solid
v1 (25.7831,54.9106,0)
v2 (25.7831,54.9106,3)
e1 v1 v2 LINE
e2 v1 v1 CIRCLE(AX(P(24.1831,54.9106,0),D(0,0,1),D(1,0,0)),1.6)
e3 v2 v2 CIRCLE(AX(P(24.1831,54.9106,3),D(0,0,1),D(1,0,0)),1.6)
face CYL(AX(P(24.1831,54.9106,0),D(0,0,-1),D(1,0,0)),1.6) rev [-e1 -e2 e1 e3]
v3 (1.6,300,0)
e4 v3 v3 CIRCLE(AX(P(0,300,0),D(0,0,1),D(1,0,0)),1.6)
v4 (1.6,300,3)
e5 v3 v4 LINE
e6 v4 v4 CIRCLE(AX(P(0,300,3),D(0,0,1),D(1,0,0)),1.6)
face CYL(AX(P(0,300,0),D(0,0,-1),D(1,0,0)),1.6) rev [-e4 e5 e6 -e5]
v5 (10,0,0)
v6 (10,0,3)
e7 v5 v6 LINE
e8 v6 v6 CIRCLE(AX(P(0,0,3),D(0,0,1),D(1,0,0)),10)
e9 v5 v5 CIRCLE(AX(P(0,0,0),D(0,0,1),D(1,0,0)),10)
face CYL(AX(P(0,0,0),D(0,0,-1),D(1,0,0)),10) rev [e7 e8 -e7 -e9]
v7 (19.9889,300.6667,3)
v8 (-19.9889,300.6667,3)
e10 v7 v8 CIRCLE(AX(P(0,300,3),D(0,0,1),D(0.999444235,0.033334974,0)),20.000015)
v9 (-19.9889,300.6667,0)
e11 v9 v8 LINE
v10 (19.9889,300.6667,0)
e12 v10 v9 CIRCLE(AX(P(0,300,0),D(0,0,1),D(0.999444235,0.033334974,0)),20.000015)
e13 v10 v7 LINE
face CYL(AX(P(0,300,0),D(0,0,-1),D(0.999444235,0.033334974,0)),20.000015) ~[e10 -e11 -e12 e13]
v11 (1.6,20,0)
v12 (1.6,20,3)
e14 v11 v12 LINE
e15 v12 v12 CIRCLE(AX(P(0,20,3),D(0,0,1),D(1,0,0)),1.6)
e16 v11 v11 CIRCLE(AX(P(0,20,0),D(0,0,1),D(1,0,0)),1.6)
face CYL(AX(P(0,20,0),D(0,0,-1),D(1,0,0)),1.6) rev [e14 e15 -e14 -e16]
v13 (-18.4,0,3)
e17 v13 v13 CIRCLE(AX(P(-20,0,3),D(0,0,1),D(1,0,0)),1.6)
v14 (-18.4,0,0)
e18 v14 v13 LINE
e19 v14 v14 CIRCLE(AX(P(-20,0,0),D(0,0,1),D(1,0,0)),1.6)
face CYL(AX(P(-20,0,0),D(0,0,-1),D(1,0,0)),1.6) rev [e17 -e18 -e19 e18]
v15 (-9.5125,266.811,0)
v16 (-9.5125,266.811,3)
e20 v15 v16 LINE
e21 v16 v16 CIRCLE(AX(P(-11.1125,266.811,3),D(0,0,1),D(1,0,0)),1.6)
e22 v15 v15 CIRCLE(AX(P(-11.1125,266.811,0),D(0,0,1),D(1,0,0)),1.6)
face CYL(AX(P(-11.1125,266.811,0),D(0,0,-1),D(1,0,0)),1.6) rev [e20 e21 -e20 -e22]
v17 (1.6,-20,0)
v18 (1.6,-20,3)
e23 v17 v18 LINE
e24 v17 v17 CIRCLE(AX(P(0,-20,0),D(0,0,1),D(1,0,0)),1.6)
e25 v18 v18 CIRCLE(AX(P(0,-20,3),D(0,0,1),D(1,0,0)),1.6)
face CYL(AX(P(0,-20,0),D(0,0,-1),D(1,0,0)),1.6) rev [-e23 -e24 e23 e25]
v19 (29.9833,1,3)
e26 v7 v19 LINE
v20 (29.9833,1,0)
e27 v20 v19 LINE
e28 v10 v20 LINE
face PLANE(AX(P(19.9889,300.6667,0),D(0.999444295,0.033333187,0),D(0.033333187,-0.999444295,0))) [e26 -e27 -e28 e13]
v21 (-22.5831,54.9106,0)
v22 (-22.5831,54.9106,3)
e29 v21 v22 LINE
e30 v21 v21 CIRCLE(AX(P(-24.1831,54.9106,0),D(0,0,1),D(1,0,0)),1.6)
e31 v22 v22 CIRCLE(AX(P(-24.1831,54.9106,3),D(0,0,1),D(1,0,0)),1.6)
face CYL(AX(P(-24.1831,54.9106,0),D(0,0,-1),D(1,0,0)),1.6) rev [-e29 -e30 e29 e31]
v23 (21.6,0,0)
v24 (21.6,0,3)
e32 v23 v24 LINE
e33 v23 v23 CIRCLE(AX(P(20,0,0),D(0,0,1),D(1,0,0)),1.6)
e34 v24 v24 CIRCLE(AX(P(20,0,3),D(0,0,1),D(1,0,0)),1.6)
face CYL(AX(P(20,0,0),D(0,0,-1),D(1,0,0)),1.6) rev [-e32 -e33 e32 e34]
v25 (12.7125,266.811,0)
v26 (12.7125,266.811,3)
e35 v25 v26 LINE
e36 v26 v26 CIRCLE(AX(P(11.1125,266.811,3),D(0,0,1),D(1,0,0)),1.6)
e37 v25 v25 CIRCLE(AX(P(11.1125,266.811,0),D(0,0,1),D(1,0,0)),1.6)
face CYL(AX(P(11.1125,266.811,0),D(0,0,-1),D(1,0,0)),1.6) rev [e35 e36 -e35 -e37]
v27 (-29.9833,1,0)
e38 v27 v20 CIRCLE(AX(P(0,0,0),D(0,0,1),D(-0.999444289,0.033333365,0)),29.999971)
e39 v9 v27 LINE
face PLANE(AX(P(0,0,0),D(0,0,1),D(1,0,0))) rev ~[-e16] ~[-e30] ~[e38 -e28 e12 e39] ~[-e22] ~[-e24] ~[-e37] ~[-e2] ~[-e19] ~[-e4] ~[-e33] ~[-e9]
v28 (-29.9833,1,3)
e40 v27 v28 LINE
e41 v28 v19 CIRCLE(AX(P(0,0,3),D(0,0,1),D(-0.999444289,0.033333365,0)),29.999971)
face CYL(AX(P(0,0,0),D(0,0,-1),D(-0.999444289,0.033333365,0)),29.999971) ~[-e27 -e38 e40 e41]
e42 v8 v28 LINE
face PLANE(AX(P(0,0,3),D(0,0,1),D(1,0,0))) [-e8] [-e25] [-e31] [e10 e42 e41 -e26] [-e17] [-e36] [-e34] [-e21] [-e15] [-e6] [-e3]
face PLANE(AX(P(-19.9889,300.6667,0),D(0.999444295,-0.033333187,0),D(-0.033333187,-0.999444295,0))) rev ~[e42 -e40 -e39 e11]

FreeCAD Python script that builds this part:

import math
import FreeCAD as App
import Part
import Sketcher
from FreeCAD import Vector

doc = App.newDocument("Part")
body = doc.addObject("PartDesign::Body", "Body")

# Sketch on XY plane
sketch1 = body.newObject("Sketcher::SketchObject", "Sketch")
sketch1.AttachmentSupport = (doc.getObject("XY_Plane"), [""])
sketch1.MapMode = "FlatFace"
sketch1.addGeometry(Part.LineSegment(Vector(30, 1, 0), Vector(20, 300.7, 0)), False)
sketch1.addGeometry(Part.ArcOfCircle(Part.Circle(Vector(0, 300, 0), Vector(0, 0, 1), 20), math.radians(2), math.radians(178)), False)
sketch1.addGeometry(Part.LineSegment(Vector(-20, 300.7, 0), Vector(-30, 1, 0)), False)
sketch1.addGeometry(Part.ArcOfCircle(Part.Circle(Vector(0, 0, 0), Vector(0, 0, 1), 30), math.radians(178), math.radians(362)), False)
sketch1.addGeometry(Part.Circle(Vector(-20, 0, 0), Vector(0, 0, 1), 1.6), False)
sketch1.addGeometry(Part.Circle(Vector(-24.2, 54.9, 0), Vector(0, 0, 1), 1.6), False)
sketch1.addGeometry(Part.Circle(Vector(0, -20, 0), Vector(0, 0, 1), 1.6), False)
sketch1.addGeometry(Part.Circle(Vector(0, 0, 0), Vector(0, 0, 1), 10), False)
sketch1.addGeometry(Part.Circle(Vector(0, 20, 0), Vector(0, 0, 1), 1.6), False)
sketch1.addGeometry(Part.Circle(Vector(20, 0, 0), Vector(0, 0, 1), 1.6), False)
sketch1.addGeometry(Part.Circle(Vector(24.2, 54.9, 0), Vector(0, 0, 1), 1.6), False)
sketch1.addGeometry(Part.Circle(Vector(-11.1, 266.8, 0), Vector(0, 0, 1), 1.6), False)
sketch1.addGeometry(Part.Circle(Vector(11.1, 266.8, 0), Vector(0, 0, 1), 1.6), False)
sketch1.addGeometry(Part.Circle(Vector(0, 300, 0), Vector(0, 0, 1), 1.6), False)
sketch1.addConstraint(Sketcher.Constraint("Tangent", 0, 2, 1, 1))
sketch1.addConstraint(Sketcher.Constraint("Tangent", 1, 2, 2, 1))
sketch1.addConstraint(Sketcher.Constraint("Tangent", 2, 2, 3, 1))
sketch1.addConstraint(Sketcher.Constraint("Tangent", 3, 2, 0, 1))
sketch1.addConstraint(Sketcher.Constraint("Coincident", 3, 3, -1, 1))
sketch1.addConstraint(Sketcher.Constraint("Coincident", 7, 3, -1, 1))
sketch1.addConstraint(Sketcher.Constraint("Coincident", 13, 3, 1, 3))
sketch1.addConstraint(Sketcher.Constraint("Equal", 4, 5))
sketch1.addConstraint(Sketcher.Constraint("Equal", 5, 6))
sketch1.addConstraint(Sketcher.Constraint("Equal", 6, 8))
sketch1.addConstraint(Sketcher.Constraint("Equal", 8, 9))
sketch1.addConstraint(Sketcher.Constraint("Equal", 9, 10))
sketch1.addConstraint(Sketcher.Constraint("Equal", 10, 11))
sketch1.addConstraint(Sketcher.Constraint("Equal", 11, 12))
sketch1.addConstraint(Sketcher.Constraint("Equal", 12, 13))
sketch1.addConstraint(Sketcher.Constraint("Symmetric", 6, 3, 8, 3, -1, 1))
sketch1.addConstraint(Sketcher.Constraint("Symmetric", 4, 3, 9, 3, -1, 1))
sketch1.addConstraint(Sketcher.Constraint("Symmetric", 5, 3, 10, 3, -2))
sketch1.addConstraint(Sketcher.Constraint("Symmetric", 11, 3, 12, 3, -2))
sketch1.addConstraint(Sketcher.Constraint("PointOnObject", 1, 3, -2))
sketch1.addConstraint(Sketcher.Constraint("PointOnObject", 4, 3, -1))
sketch1.addConstraint(Sketcher.Constraint("PointOnObject", 6, 3, -2))
sketch1.addConstraint(Sketcher.Constraint("Diameter", 7, 20.0))
sketch1.addConstraint(Sketcher.Constraint("Radius", 1, 20.0))
sketch1.addConstraint(Sketcher.Constraint("Radius", 3, 30.0))
sketch1.addConstraint(Sketcher.Constraint("Diameter", 4, 3.2))
sketch1.addConstraint(Sketcher.Constraint("DistanceY", -1, 1, 1, 3, 300.0))
sketch1.addConstraint(Sketcher.Constraint("DistanceX", 4, 3, -1, 1, 20.0))
sketch1.addConstraint(Sketcher.Constraint("DistanceY", 6, 3, -1, 1, 20.0))
sketch1.addConstraint(Sketcher.Constraint("DistanceX", 5, 3, -1, 1, 24.183))
sketch1.addConstraint(Sketcher.Constraint("DistanceY", -1, 1, 11, 3, 266.811))
sketch1.addConstraint(Sketcher.Constraint("DistanceX", 11, 3, 12, 3, 22.225))
sketch1.addConstraint(Sketcher.Constraint("DistanceY", 10, 3, 0, 2, 245.756))
pad1 = body.newObject("PartDesign::Pad", "Pad")
pad1.Profile = sketch1
pad1.Length = 3

doc.recompute()
